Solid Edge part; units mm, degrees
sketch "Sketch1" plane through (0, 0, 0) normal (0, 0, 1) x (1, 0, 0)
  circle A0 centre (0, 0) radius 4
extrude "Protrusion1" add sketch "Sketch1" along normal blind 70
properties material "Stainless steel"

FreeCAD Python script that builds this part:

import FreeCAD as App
import Part
import Sketcher

V = App.Vector
Q = App.Units.Quantity

doc = App.newDocument("Part")
params = doc.addObject("Spreadsheet::Sheet", "Params")
for row, (alias, value) in enumerate([
    ("sketch1_diameter", "8 mm"),
    ("pad1_length", "70 mm"),
], start=1):
    params.set(f"A{row}", alias)
    params.set(f"B{row}", "=" + value)
    params.setAlias(f"B{row}", alias)

body = doc.addObject("PartDesign::Body", "Body")

# Sketch on XY plane
sketch1 = body.newObject("Sketcher::SketchObject", "Sketch")
sketch1.AttachmentSupport = (doc.getObject("XY_Plane"), [""])
sketch1.MapMode = "FlatFace"
sketch1.addGeometry(Part.Circle(V(0, 0, 0), V(0, 0, 1), 4), False)
sketch1.addConstraint(Sketcher.Constraint("Coincident", 0, 3, -1, 1))
sketch1.addConstraint(Sketcher.Constraint("Diameter", 0, Q("8 mm")))
sketch1.setExpression("Constraints[1]", "Params.sketch1_diameter")
pad1 = body.newObject("PartDesign::Pad", "Pad")
pad1.Profile = sketch1
pad1.setExpression("Length", "Params.pad1_length")

doc.recompute()
